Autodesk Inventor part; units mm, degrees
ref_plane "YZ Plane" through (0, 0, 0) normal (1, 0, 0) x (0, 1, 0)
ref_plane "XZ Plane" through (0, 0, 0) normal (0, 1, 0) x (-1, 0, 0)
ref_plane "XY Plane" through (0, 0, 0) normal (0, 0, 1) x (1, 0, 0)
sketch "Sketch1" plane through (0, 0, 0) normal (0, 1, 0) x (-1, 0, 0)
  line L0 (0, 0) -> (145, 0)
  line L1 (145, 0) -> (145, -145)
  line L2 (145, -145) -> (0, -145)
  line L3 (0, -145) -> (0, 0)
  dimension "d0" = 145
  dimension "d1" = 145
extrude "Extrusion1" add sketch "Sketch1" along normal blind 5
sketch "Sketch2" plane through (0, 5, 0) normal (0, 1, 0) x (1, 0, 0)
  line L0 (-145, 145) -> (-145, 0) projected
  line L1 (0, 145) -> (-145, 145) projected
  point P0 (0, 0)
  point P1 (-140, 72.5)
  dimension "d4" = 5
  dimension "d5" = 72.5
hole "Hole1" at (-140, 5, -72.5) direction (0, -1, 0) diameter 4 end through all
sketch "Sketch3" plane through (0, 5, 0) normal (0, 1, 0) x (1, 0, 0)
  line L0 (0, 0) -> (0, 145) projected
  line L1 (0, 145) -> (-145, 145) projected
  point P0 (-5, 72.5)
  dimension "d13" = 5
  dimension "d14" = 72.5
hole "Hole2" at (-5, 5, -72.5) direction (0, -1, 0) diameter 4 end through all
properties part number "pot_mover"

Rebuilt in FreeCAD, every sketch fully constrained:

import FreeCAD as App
import Part
import Sketcher

V = App.Vector
Q = App.Units.Quantity

doc = App.newDocument("Part")
body = doc.addObject("PartDesign::Body", "Body")

# Sketch on XZ plane
sketch1 = body.newObject("Sketcher::SketchObject", "Sketch")
sketch1.AttachmentSupport = (doc.getObject("XZ_Plane"), [""])
sketch1.MapMode = "FlatFace"
sketch1.addGeometry(Part.LineSegment(V(-145, 0, 0), V(0, 0, 0)), False)
sketch1.addGeometry(Part.LineSegment(V(0, 0, 0), V(0, -145, 0)), False)
sketch1.addGeometry(Part.LineSegment(V(0, -145, 0), V(-145, -145, 0)), False)
sketch1.addGeometry(Part.LineSegment(V(-145, -145, 0), V(-145, 0, 0)), False)
sketch1.addConstraint(Sketcher.Constraint("Coincident", 0, 2, 1, 1))
sketch1.addConstraint(Sketcher.Constraint("Coincident", 1, 2, 2, 1))
sketch1.addConstraint(Sketcher.Constraint("Coincident", 2, 2, 3, 1))
sketch1.addConstraint(Sketcher.Constraint("Coincident", 3, 2, 0, 1))
sketch1.addConstraint(Sketcher.Constraint("Horizontal", 0))
sketch1.addConstraint(Sketcher.Constraint("Vertical", 1))
sketch1.addConstraint(Sketcher.Constraint("Horizontal", 2))
sketch1.addConstraint(Sketcher.Constraint("Vertical", 3))
sketch1.addConstraint(Sketcher.Constraint("Coincident", 0, 2, -1, 1))
sketch1.addConstraint(Sketcher.Constraint("Equal", 2, 1))
sketch1.addConstraint(Sketcher.Constraint("DistanceX", 0, 1, 0, 2, Q("145 mm")))
pad1 = body.newObject("PartDesign::Pad", "Pad")
pad1.Profile = sketch1
pad1.Length = 5
pad1.Reversed = True

# Sketch on XZ plane
sketch2 = body.newObject("Sketcher::SketchObject", "Sketch001")
sketch2.AttachmentSupport = (doc.getObject("XZ_Plane"), [""])
sketch2.MapMode = "FlatFace"
sketch2.AttachmentOffset = App.Placement(V(0, 0, -5), App.Rotation())
sketch2.addGeometry(Part.Circle(V(-140, -72.5, 0), V(0, 0, 1), 2), False)
sketch2.addConstraint(Sketcher.Constraint("Diameter", 0, Q("4 mm")))
sketch2.addConstraint(Sketcher.Constraint("DistanceX", 0, 3, -1, 1, Q("140 mm")))
sketch2.addConstraint(Sketcher.Constraint("DistanceY", 0, 3, -1, 1, Q("72.5 mm")))
doc.recompute()
hole = body.newObject("PartDesign::Hole", "Hole")
hole.Profile = sketch2
hole.ThreadType = "None"
hole.Diameter = 4
hole.DepthType = "ThroughAll"
hole.Reversed = True

# Sketch on XZ plane
sketch3 = body.newObject("Sketcher::SketchObject", "Sketch002")
sketch3.AttachmentSupport = (doc.getObject("XZ_Plane"), [""])
sketch3.MapMode = "FlatFace"
sketch3.AttachmentOffset = App.Placement(V(0, 0, -5), App.Rotation())
sketch3.addGeometry(Part.Circle(V(-5, -72.5, 0), V(0, 0, 1), 2), False)
sketch3.addConstraint(Sketcher.Constraint("Diameter", 0, Q("4 mm")))
sketch3.addConstraint(Sketcher.Constraint("DistanceX", 0, 3, -1, 1, Q("5 mm")))
sketch3.addConstraint(Sketcher.Constraint("DistanceY", 0, 3, -1, 1, Q("72.5 mm")))
doc.recompute()
hole2 = body.newObject("PartDesign::Hole", "Hole001")
hole2.Profile = sketch3
hole2.ThreadType = "None"
hole2.Diameter = 4
hole2.DepthType = "ThroughAll"
hole2.Reversed = True

doc.recompute()
